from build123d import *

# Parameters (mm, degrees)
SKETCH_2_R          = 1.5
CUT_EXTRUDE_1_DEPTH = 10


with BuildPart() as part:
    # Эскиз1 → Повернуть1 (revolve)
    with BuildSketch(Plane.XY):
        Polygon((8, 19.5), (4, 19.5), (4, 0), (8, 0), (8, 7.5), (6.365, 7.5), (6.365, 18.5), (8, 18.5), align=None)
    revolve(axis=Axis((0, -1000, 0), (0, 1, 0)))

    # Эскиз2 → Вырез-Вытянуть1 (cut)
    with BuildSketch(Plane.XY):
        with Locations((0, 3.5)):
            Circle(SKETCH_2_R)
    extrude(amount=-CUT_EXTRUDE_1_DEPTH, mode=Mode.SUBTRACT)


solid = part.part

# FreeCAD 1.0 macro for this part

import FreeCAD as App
import Part
import Sketcher

V = App.Vector


def add_polygon(sketch, points):
    """Adds a closed chain of lines whose ends are joined by coincident constraints."""
    first, n = sketch.GeometryCount, len(points)
    for a, b in zip(points, points[1:] + points[:1]):
        sketch.addGeometry(Part.LineSegment(App.Vector(*a, 0), App.Vector(*b, 0)), False)
    for i in range(n):
        sketch.addConstraint(Sketcher.Constraint("Coincident", first + i, 2, first + (i + 1) % n, 1))

doc = App.newDocument("Part")
body = doc.addObject("PartDesign::Body", "Body")

sketch1 = doc.addObject("Sketcher::SketchObject", "Sketch")
body.addObject(sketch1)
sketch1.AttachmentSupport = (doc.XY_Plane, [""])
sketch1.MapMode = "FlatFace"
add_polygon(sketch1, [(8, 19.5), (4, 19.5), (4, 0), (8, 0), (8, 7.5), (6.4, 7.5), (6.4, 18.5), (8, 18.5)])
sketch1.addConstraint([
    Sketcher.Constraint("Horizontal", 0),
    Sketcher.Constraint("Vertical", 1),
    Sketcher.Constraint("Horizontal", 2),
    Sketcher.Constraint("Vertical", 3),
    Sketcher.Constraint("Horizontal", 4),
    Sketcher.Constraint("Vertical", 5),
    Sketcher.Constraint("Horizontal", 6),
    Sketcher.Constraint("Vertical", 7),
    Sketcher.Constraint("PointOnObject", 1, 2, -1),
    Sketcher.Constraint("Vertical", 3, 2, 6, 2),
    Sketcher.Constraint("DistanceX", 0, 2, 0, 1, 4.0),
    Sketcher.Constraint("DistanceY", 5, 1, 5, 2, 11.0),
    Sketcher.Constraint("DistanceY", 7, 1, 7, 2, 1.0),
    Sketcher.Constraint("DistanceY", 1, 2, 1, 1, 19.5),
    Sketcher.Constraint("DistanceX", -1, 1, 0, 2, 4.0),
    Sketcher.Constraint("DistanceX", 4, 2, 4, 1, 1.635),
])
revolution = doc.addObject("PartDesign::Revolution", "Revolution")
body.addObject(revolution)
revolution.Profile = sketch1
revolution.ReferenceAxis = (sketch1, ["V_Axis"])
revolution.Angle = 360

sketch2 = doc.addObject("Sketcher::SketchObject", "Sketch001")
body.addObject(sketch2)
sketch2.AttachmentSupport = (doc.XY_Plane, [""])
sketch2.MapMode = "FlatFace"
sketch2.addGeometry(Part.Circle(V(0, 3.5, 0), V(0, 0, 1), 1.5), False)
sketch2.addConstraint([
    Sketcher.Constraint("PointOnObject", 0, 3, -2),
    Sketcher.Constraint("Diameter", 0, 3.0),
    Sketcher.Constraint("DistanceY", -1, 1, 0, 3, 3.5),
])
pocket1 = doc.addObject("PartDesign::Pocket", "Pocket")
body.addObject(pocket1)
pocket1.Profile = sketch2
pocket1.Length = 10

doc.recompute()
